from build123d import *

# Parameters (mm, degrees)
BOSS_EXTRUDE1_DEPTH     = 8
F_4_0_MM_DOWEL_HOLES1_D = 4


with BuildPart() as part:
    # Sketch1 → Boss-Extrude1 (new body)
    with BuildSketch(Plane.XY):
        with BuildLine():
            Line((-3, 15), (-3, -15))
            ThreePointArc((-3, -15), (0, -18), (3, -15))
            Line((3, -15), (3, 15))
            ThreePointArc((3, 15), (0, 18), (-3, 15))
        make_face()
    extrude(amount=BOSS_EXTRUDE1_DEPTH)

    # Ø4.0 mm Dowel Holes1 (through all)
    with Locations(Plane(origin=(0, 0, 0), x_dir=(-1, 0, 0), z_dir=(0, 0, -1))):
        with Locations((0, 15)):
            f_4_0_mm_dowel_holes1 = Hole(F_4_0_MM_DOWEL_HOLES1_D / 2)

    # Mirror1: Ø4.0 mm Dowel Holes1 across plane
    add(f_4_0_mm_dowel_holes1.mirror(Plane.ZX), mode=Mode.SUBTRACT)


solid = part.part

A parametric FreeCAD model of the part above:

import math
import FreeCAD as App
import Part
import Sketcher
from FreeCAD import Vector
Q = App.Units.Quantity

doc = App.newDocument("Part")
params = doc.addObject("Spreadsheet::Sheet", "Params")
for row, (alias, value) in enumerate([
    ("sketch1_radius", "3 mm"),
    ("sketch1_height", "30 mm"),
    ("pad1_length", "8 mm"),
    ("sketch2_diameter", "4 mm"),
    ("hole_diameter", "4 mm"),
], start=1):
    params.set(f"A{row}", alias)
    params.set(f"B{row}", "=" + value)
    params.setAlias(f"B{row}", alias)

body = doc.addObject("PartDesign::Body", "Body")

sketch1 = body.newObject("Sketcher::SketchObject", "Sketch")
sketch1.AttachmentSupport = (doc.getObject("XY_Plane"), [""])
sketch1.MapMode = "FlatFace"
sketch1.addGeometry(Part.LineSegment(Vector(-3, 15, 0), Vector(-3, -15, 0)), False)
sketch1.addGeometry(Part.ArcOfCircle(Part.Circle(Vector(0, -15, 0), Vector(0, 0, 1), 3), math.radians(180), math.radians(360)), False)
sketch1.addGeometry(Part.LineSegment(Vector(3, -15, 0), Vector(3, 15, 0)), False)
sketch1.addGeometry(Part.ArcOfCircle(Part.Circle(Vector(0, 15, 0), Vector(0, 0, 1), 3), math.radians(0), math.radians(180)), False)
sketch1.addConstraint(Sketcher.Constraint("Tangent", 0, 2, 1, 1))
sketch1.addConstraint(Sketcher.Constraint("Tangent", 1, 2, 2, 1))
sketch1.addConstraint(Sketcher.Constraint("Tangent", 2, 2, 3, 1))
sketch1.addConstraint(Sketcher.Constraint("Tangent", 3, 2, 0, 1))
sketch1.addConstraint(Sketcher.Constraint("Vertical", 0))
sketch1.addConstraint(Sketcher.Constraint("Vertical", 2))
sketch1.addConstraint(Sketcher.Constraint("Symmetric", 1, 3, 3, 3, -1, 1))
sketch1.addConstraint(Sketcher.Constraint("Radius", 1, Q("3 mm")))
sketch1.addConstraint(Sketcher.Constraint("DistanceY", 0, 2, 0, 1, Q("30 mm")))
sketch1.setExpression("Constraints[7]", "Params.sketch1_radius")
sketch1.setExpression("Constraints[8]", "Params.sketch1_height")
pad1 = body.newObject("PartDesign::Pad", "Pad")
pad1.Profile = sketch1
pad1.setExpression("Length", "Params.pad1_length")

sketch2 = body.newObject("Sketcher::SketchObject", "Sketch001")
sketch2.AttachmentSupport = (doc.getObject("XY_Plane"), [""])
sketch2.MapMode = "FlatFace"
sketch2.addGeometry(Part.Circle(Vector(0, 15, 0), Vector(0, 0, 1), 2), False)
sketch2.addConstraint(Sketcher.Constraint("PointOnObject", 0, 3, -2))
sketch2.addConstraint(Sketcher.Constraint("Diameter", 0, Q("4 mm")))
sketch2.addConstraint(Sketcher.Constraint("DistanceY", -1, 1, 0, 3, Q("15 mm")))
sketch2.setExpression("Constraints[1]", "Params.sketch2_diameter")
doc.recompute()
hole = body.newObject("PartDesign::Hole", "Hole")
hole.Profile = sketch2
hole.ThreadType = "None"
hole.setExpression("Diameter", "Params.hole_diameter")
hole.DepthType = "ThroughAll"
hole.Reversed = True
doc.recompute()

mirrored = body.newObject("PartDesign::Mirrored", "Mirrored")
mirrored.Originals = [hole]
mirrored.MirrorPlane = (doc.getObject("XZ_Plane"), [""])
body.Tip = mirrored

doc.recompute()
